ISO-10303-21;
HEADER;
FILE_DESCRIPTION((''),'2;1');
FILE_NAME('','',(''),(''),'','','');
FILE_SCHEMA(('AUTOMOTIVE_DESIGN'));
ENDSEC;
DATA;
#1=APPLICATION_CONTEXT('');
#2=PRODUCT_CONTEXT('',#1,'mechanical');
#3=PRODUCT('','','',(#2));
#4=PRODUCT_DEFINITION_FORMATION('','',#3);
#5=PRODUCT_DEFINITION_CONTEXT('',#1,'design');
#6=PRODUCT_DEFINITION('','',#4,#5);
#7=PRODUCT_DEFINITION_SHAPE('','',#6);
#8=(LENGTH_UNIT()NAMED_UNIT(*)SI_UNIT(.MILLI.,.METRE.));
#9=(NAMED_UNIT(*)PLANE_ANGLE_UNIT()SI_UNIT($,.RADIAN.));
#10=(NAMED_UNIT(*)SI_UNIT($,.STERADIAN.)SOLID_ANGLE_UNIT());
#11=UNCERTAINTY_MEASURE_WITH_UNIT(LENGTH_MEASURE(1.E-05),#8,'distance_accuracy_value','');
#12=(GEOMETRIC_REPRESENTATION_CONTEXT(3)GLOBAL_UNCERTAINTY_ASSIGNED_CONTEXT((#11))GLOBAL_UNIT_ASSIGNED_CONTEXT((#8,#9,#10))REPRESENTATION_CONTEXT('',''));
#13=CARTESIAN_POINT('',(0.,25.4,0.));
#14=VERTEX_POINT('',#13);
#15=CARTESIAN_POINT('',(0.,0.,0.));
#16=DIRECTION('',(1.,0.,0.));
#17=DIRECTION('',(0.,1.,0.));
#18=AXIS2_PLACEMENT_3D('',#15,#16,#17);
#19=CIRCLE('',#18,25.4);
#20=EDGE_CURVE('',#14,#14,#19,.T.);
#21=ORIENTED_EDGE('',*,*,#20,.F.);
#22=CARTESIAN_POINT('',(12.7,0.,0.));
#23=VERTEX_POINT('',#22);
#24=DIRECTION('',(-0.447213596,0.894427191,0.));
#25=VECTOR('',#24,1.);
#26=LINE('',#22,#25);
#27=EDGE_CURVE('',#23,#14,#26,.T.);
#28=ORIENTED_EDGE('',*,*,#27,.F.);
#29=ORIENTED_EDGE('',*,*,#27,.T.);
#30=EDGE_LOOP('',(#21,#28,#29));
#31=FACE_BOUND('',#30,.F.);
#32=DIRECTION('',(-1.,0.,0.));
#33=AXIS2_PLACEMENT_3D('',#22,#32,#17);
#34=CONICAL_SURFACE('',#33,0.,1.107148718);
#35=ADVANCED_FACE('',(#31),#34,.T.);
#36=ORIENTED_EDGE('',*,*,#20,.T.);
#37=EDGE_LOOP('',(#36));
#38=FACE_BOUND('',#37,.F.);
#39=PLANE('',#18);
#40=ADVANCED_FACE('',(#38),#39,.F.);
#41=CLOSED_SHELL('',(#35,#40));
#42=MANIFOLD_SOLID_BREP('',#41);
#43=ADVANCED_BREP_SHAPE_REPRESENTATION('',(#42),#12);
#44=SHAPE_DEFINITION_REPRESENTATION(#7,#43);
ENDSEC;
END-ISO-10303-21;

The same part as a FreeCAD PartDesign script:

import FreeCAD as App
import Part
import Sketcher
Q = App.Units.Quantity

doc = App.newDocument("Part")
body = doc.addObject("PartDesign::Body", "Body")

# Sketch on XY plane
sketch1 = doc.addObject("Sketcher::SketchObject", "Sketch")
body.addObject(sketch1)
sketch1.AttachmentSupport = (doc.XY_Plane, [""])
sketch1.MapMode = "FlatFace"
sketch1.addGeometry([
    Part.LineSegment(App.Vector(0, 25, 0), App.Vector(0, 0, 0)),
    Part.LineSegment(App.Vector(0, 0, 0), App.Vector(13, 0, 0)),
    Part.LineSegment(App.Vector(13, 0, 0), App.Vector(0, 25, 0)),
], False)
sketch1.addConstraint([
    Sketcher.Constraint("Coincident", 0, 2, 1, 1),
    Sketcher.Constraint("Coincident", 1, 2, 2, 1),
    Sketcher.Constraint("Coincident", 2, 2, 0, 1),
    Sketcher.Constraint("Vertical", 0),
    Sketcher.Constraint("Horizontal", 1),
    Sketcher.Constraint("Coincident", 0, 2, -1, 1),
    Sketcher.Constraint("DistanceY", 0, 2, 0, 1, Q("1 in")),
    Sketcher.Constraint("DistanceX", 1, 1, 1, 2, Q("0.5 in")),
])
revolution = doc.addObject("PartDesign::Revolution", "Revolution")
body.addObject(revolution)
revolution.Profile = sketch1
revolution.ReferenceAxis = (sketch1, ["H_Axis"])
revolution.Angle = 360

doc.recompute()
